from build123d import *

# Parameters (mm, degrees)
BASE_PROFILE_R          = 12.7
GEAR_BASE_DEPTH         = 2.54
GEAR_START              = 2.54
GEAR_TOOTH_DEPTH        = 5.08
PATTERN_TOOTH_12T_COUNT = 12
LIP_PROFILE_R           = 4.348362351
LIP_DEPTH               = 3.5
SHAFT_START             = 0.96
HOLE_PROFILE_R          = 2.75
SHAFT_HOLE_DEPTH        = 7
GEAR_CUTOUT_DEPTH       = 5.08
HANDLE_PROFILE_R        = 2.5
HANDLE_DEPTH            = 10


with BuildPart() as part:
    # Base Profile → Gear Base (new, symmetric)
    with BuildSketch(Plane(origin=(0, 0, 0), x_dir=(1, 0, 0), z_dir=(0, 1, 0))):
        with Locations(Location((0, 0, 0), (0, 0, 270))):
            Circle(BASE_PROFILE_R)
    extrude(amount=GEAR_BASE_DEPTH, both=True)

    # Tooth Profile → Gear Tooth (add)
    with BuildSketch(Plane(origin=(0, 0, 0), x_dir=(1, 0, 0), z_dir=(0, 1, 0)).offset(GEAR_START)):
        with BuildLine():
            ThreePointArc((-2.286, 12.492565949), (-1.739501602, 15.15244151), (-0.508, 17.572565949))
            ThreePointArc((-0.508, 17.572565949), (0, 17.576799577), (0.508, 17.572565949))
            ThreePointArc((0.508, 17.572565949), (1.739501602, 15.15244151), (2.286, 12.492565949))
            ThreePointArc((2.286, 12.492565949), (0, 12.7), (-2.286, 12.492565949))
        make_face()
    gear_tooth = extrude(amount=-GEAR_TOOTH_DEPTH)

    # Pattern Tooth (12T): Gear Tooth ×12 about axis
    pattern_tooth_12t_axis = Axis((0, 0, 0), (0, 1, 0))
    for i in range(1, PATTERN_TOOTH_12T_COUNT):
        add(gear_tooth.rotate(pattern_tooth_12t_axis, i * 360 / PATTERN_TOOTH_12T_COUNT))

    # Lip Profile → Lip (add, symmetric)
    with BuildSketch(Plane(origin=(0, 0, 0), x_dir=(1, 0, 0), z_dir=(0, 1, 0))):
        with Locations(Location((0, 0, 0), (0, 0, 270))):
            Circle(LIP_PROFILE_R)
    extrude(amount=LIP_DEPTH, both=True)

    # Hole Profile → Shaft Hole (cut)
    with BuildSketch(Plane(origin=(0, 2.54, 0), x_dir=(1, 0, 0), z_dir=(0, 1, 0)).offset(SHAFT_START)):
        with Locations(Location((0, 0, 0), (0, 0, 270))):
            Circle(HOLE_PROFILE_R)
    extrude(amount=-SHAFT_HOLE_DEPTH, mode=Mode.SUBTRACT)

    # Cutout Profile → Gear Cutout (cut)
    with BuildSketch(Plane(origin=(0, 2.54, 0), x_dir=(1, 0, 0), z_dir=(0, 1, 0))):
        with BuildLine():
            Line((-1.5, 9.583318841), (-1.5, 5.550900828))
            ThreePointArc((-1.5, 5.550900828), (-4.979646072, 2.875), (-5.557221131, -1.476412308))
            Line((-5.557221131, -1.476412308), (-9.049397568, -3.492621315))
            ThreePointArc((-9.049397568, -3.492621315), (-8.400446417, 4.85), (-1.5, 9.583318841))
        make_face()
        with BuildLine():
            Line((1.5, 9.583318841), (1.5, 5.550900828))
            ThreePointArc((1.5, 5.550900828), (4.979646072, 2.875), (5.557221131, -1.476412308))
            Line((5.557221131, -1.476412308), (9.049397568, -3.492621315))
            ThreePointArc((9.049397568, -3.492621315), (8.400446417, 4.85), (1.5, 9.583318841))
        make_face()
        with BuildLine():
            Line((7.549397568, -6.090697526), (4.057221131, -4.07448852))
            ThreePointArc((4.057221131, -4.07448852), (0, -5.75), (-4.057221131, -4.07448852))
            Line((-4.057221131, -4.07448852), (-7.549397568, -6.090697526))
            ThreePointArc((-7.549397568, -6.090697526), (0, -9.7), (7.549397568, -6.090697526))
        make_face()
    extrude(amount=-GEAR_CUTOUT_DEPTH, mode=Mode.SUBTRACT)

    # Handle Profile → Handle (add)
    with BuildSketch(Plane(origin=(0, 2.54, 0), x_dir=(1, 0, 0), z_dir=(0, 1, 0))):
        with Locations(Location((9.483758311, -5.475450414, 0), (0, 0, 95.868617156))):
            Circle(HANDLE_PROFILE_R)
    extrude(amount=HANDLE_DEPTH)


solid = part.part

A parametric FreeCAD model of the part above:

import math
import FreeCAD as App
import Part
import Sketcher
from FreeCAD import Vector
Q = App.Units.Quantity

doc = App.newDocument("Part")
body = doc.addObject("PartDesign::Body", "Body")

sketch1 = body.newObject("Sketcher::SketchObject", "Sketch")
sketch1.AttachmentSupport = (doc.getObject("XZ_Plane"), [""])
sketch1.MapMode = "FlatFace"
sketch1.addGeometry(Part.Circle(Vector(0, 0, 0), Vector(0, 0, 1), 12.7), False)
sketch1.addConstraint([
    Sketcher.Constraint("Coincident", 0, 3, -1, 1),
    Sketcher.Constraint("Diameter", 0, Q("25.4 mm")),
])
pad1 = body.newObject("PartDesign::Pad", "Pad")
pad1.Profile = sketch1
pad1.Length = 5.08
pad1.Midplane = True

sketch2 = body.newObject("Sketcher::SketchObject", "Sketch001")
sketch2.AttachmentSupport = (doc.getObject("XZ_Plane"), [""])
sketch2.MapMode = "FlatFace"
sketch2.AttachmentOffset = App.Placement(Vector(0, 0, -2.54), App.Rotation())
sketch2.addGeometry([
    Part.ArcOfCircle(Part.Circle(Vector(7.850099, -11.796081, 0), Vector(0, 0, 1), 10.16), math.radians(-176.069197), math.radians(-145.350711)),
    Part.ArcOfCircle(Part.Circle(Vector(0, 0, 0), Vector(0, 0, 1), 12.7), math.radians(-100.36976), math.radians(-79.63024)),
    Part.ArcOfCircle(Part.Circle(Vector(-7.850099, -11.796081, 0), Vector(0, 0, 1), 10.16), math.radians(-34.649289), math.radians(-3.930803)),
    Part.ArcOfCircle(Part.Circle(Vector(0, 12.903196, 0), Vector(0, 0, 1), 30.479995), math.radians(-90.954974), math.radians(-89.045026)),
], False)
sketch2.addConstraint([
    Sketcher.Constraint("Coincident", 0, 1, 1, 1),
    Sketcher.Constraint("Coincident", 1, 2, 2, 2),
    Sketcher.Constraint("Coincident", 2, 1, 3, 2),
    Sketcher.Constraint("Coincident", 3, 1, 0, 2),
    Sketcher.Constraint("Coincident", 1, 3, -1, 1),
    Sketcher.Constraint("Equal", 0, 2),
    Sketcher.Constraint("Symmetric", 0, 3, 2, 3, -2),
    Sketcher.Constraint("PointOnObject", 3, 3, -2),
    Sketcher.Constraint("Radius", 1, Q("12.7 mm")),
    Sketcher.Constraint("Radius", 0, Q("10.16 mm")),
    Sketcher.Constraint("DistanceY", 2, 1, 1, 2, Q("5.08 mm")),
    Sketcher.Constraint("DistanceX", 0, 1, -1, 1, Q("2.286 mm")),
    Sketcher.Constraint("DistanceX", -1, 1, 2, 1, Q("0.508 mm")),
    Sketcher.Constraint("Radius", 3, Q("30.479995 mm")),
])
pad2 = body.newObject("PartDesign::Pad", "Pad001")
pad2.Profile = sketch2
pad2.Length = 5.08
doc.recompute()

polarpattern = body.newObject("PartDesign::PolarPattern", "PolarPattern")
polarpattern.Originals = [pad2]
polarpattern.Axis = (doc.getObject("Y_Axis"), [""])
polarpattern.Angle = 360
polarpattern.Occurrences = 12
body.Tip = polarpattern

sketch3 = body.newObject("Sketcher::SketchObject", "Sketch002")
sketch3.AttachmentSupport = (doc.getObject("XZ_Plane"), [""])
sketch3.MapMode = "FlatFace"
sketch3.addGeometry(Part.Circle(Vector(0, 0, 0), Vector(0, 0, 1), 4.348362), False)
sketch3.addConstraint([
    Sketcher.Constraint("Coincident", 0, 3, -1, 1),
    Sketcher.Constraint("Diameter", 0, Q("8.696725 mm")),
])
pad3 = body.newObject("PartDesign::Pad", "Pad002")
pad3.Profile = sketch3
pad3.Length = 7
pad3.Midplane = True

sketch4 = body.newObject("Sketcher::SketchObject", "Sketch003")
sketch4.AttachmentSupport = (doc.getObject("XZ_Plane"), [""])
sketch4.MapMode = "FlatFace"
sketch4.AttachmentOffset = App.Placement(Vector(0, 0, -3.5), App.Rotation())
sketch4.addGeometry(Part.Circle(Vector(0, 0, 0), Vector(0, 0, 1), 2.75), False)
sketch4.addConstraint([
    Sketcher.Constraint("Coincident", 0, 3, -1, 1),
    Sketcher.Constraint("Diameter", 0, Q("5.5 mm")),
])
pocket1 = body.newObject("PartDesign::Pocket", "Pocket")
pocket1.Profile = sketch4
pocket1.Length = 7
pocket1.Reversed = True

sketch5 = body.newObject("Sketcher::SketchObject", "Sketch004")
sketch5.AttachmentSupport = (doc.getObject("XZ_Plane"), [""])
sketch5.MapMode = "FlatFace"
sketch5.AttachmentOffset = App.Placement(Vector(0, 0, -2.54), App.Rotation())
sketch5.addGeometry([
    Part.LineSegment(Vector(-1.5, -5.550901, 0), Vector(-1.5, -9.583319, 0)),
    Part.ArcOfCircle(Part.Circle(Vector(0, 0, 0), Vector(0, 0, 1), 9.7), math.radians(158.89587), math.radians(261.10413)),
    Part.LineSegment(Vector(-9.049398, 3.492621, 0), Vector(-5.557221, 1.476412, 0)),
    Part.ArcOfCircle(Part.Circle(Vector(0, 0, 0), Vector(0, 0, 1), 5.75), math.radians(165.121665), math.radians(254.878335)),
    Part.LineSegment(Vector(1.5, -9.583319, 0), Vector(1.5, -5.550901, 0)),
    Part.ArcOfCircle(Part.Circle(Vector(0, 0, 0), Vector(0, 0, 1), 5.75), math.radians(-74.878335), math.radians(14.878335)),
    Part.LineSegment(Vector(5.557221, 1.476412, 0), Vector(9.049398, 3.492621, 0)),
    Part.ArcOfCircle(Part.Circle(Vector(0, 0, 0), Vector(0, 0, 1), 9.7), math.radians(-81.10413), math.radians(21.10413)),
    Part.LineSegment(Vector(7.549398, 6.090698, 0), Vector(4.057221, 4.074489, 0)),
    Part.ArcOfCircle(Part.Circle(Vector(0, 0, 0), Vector(0, 0, 1), 5.75), math.radians(45.121665), math.radians(134.878335)),
    Part.LineSegment(Vector(-4.057221, 4.074489, 0), Vector(-7.549398, 6.090698, 0)),
    Part.ArcOfCircle(Part.Circle(Vector(0, 0, 0), Vector(0, 0, 1), 9.7), math.radians(38.89587), math.radians(141.10413)),
], False)
sketch5.addConstraint([
    Sketcher.Constraint("Coincident", 0, 2, 1, 2),
    Sketcher.Constraint("Coincident", 1, 1, 2, 1),
    Sketcher.Constraint("Coincident", 2, 2, 3, 1),
    Sketcher.Constraint("Coincident", 3, 2, 0, 1),
    Sketcher.Constraint("Coincident", 4, 2, 5, 1),
    Sketcher.Constraint("Coincident", 5, 2, 6, 1),
    Sketcher.Constraint("Coincident", 6, 2, 7, 2),
    Sketcher.Constraint("Coincident", 7, 1, 4, 1),
    Sketcher.Constraint("Coincident", 8, 2, 9, 1),
    Sketcher.Constraint("Coincident", 9, 2, 10, 1),
    Sketcher.Constraint("Coincident", 10, 2, 11, 2),
    Sketcher.Constraint("Coincident", 11, 1, 8, 1),
    Sketcher.Constraint("Vertical", 0),
    Sketcher.Constraint("Vertical", 4),
    Sketcher.Constraint("Coincident", 1, 3, -1, 1),
    Sketcher.Constraint("Coincident", 3, 3, -1, 1),
    Sketcher.Constraint("Coincident", 5, 3, -1, 1),
    Sketcher.Constraint("Coincident", 7, 3, -1, 1),
    Sketcher.Constraint("Coincident", 9, 3, -1, 1),
    Sketcher.Constraint("Coincident", 11, 3, -1, 1),
    Sketcher.Constraint("Equal", 3, 5),
    Sketcher.Constraint("Equal", 1, 7),
    Sketcher.Constraint("Equal", 5, 9),
    Sketcher.Constraint("Equal", 7, 11),
    Sketcher.Constraint("Parallel", 6, 8),
    Sketcher.Constraint("Parallel", 2, 10),
    Sketcher.Constraint("Horizontal", 3, 2, 4, 2),
    Sketcher.Constraint("Horizontal", 2, 2, 5, 2),
    Sketcher.Constraint("Horizontal", 1, 1, 6, 2),
    Sketcher.Constraint("Horizontal", 8, 2, 9, 2),
    Sketcher.Constraint("Equal", 6, 8),
    Sketcher.Constraint("Radius", 1, Q("9.7 mm")),
    Sketcher.Constraint("Angle", 2, Q("-30 deg")),
    Sketcher.Constraint("Radius", 3, Q("5.75 mm")),
    Sketcher.Constraint("DistanceX", 3, 2, 4, 2, Q("3 mm")),
    Sketcher.Constraint("DistanceX", 8, 2, 5, 2, Q("1.5 mm")),
])
pocket2 = body.newObject("PartDesign::Pocket", "Pocket001")
pocket2.Profile = sketch5
pocket2.Length = 5.08
pocket2.Reversed = True

sketch6 = body.newObject("Sketcher::SketchObject", "Sketch005")
sketch6.AttachmentSupport = (doc.getObject("XZ_Plane"), [""])
sketch6.MapMode = "FlatFace"
sketch6.AttachmentOffset = App.Placement(Vector(0, 0, -2.54), App.Rotation())
sketch6.addGeometry(Part.Circle(Vector(9.483758, 5.47545, 0), Vector(0, 0, 1), 2.5), False)
sketch6.addConstraint([
    Sketcher.Constraint("Diameter", 0, Q("5 mm")),
    Sketcher.Constraint("DistanceX", -1, 1, 0, 3, Q("9.483758 mm")),
    Sketcher.Constraint("DistanceY", -1, 1, 0, 3, Q("5.47545 mm")),
])
pad4 = body.newObject("PartDesign::Pad", "Pad003")
pad4.Profile = sketch6
pad4.Length = 10
pad4.Reversed = True

doc.recompute()
